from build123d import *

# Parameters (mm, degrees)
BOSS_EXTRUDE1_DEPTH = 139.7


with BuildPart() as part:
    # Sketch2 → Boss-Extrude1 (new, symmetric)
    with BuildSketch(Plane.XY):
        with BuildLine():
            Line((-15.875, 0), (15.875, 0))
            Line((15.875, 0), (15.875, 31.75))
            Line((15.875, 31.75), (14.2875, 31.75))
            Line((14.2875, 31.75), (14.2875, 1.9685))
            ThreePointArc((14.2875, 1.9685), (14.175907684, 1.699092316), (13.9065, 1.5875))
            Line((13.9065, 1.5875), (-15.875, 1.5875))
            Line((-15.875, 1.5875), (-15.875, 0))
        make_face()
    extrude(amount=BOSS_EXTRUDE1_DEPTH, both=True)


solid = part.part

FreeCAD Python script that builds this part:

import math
import FreeCAD as App
import Part
import Sketcher
from FreeCAD import Vector
Q = App.Units.Quantity

doc = App.newDocument("Part")
body = doc.addObject("PartDesign::Body", "Body")

# Sketch on XY plane
sketch1 = body.newObject("Sketcher::SketchObject", "Sketch")
sketch1.AttachmentSupport = (doc.getObject("XY_Plane"), [""])
sketch1.MapMode = "FlatFace"
sketch1.addGeometry([
    Part.LineSegment(Vector(-15.88, 0, 0), Vector(15.88, 0, 0)),  # 0
    Part.LineSegment(Vector(15.88, 0, 0), Vector(15.88, 31.75, 0)),  # 1
    Part.LineSegment(Vector(15.88, 31.75, 0), Vector(14.29, 31.75, 0)),  # 2
    Part.LineSegment(Vector(14.29, 31.75, 0), Vector(14.29, 1.97, 0)),  # 3
    Part.ArcOfCircle(Part.Circle(Vector(13.91, 1.97, 0), Vector(0, 0, 1), 0.38), math.radians(-90), math.radians(0)),  # 4
    Part.LineSegment(Vector(13.91, 1.59, 0), Vector(-15.88, 1.59, 0)),  # 5
    Part.LineSegment(Vector(-15.88, 1.59, 0), Vector(-15.88, 0, 0)),  # 6
], False)
sketch1.addConstraint([
    Sketcher.Constraint("Coincident", 0, 2, 1, 1),
    Sketcher.Constraint("Coincident", 1, 2, 2, 1),
    Sketcher.Constraint("Coincident", 2, 2, 3, 1),
    Sketcher.Constraint("Tangent", 3, 2, 4, 2),
    Sketcher.Constraint("Tangent", 4, 1, 5, 1),
    Sketcher.Constraint("Coincident", 5, 2, 6, 1),
    Sketcher.Constraint("Coincident", 6, 2, 0, 1),
    Sketcher.Constraint("Horizontal", 0),
    Sketcher.Constraint("Vertical", 1),
    Sketcher.Constraint("Horizontal", 2),
    Sketcher.Constraint("Vertical", 3),
    Sketcher.Constraint("Horizontal", 5),
    Sketcher.Constraint("Vertical", 6),
    Sketcher.Constraint("Symmetric", 0, 2, 6, 2, -1, 1),
    Sketcher.Constraint("Equal", 0, 1),
    Sketcher.Constraint("Equal", 5, 3),
    Sketcher.Constraint("Radius", 4, Q("0.015 in")),
    Sketcher.Constraint("DistanceX", 0, 1, 0, 2, Q("1.25 in")),
    Sketcher.Constraint("DistanceX", 2, 2, 2, 1, Q("0.0625 in")),
])
pad1 = body.newObject("PartDesign::Pad", "Pad")
pad1.Profile = sketch1
pad1.Length = Q("11 in")
pad1.Midplane = True

doc.recompute()
